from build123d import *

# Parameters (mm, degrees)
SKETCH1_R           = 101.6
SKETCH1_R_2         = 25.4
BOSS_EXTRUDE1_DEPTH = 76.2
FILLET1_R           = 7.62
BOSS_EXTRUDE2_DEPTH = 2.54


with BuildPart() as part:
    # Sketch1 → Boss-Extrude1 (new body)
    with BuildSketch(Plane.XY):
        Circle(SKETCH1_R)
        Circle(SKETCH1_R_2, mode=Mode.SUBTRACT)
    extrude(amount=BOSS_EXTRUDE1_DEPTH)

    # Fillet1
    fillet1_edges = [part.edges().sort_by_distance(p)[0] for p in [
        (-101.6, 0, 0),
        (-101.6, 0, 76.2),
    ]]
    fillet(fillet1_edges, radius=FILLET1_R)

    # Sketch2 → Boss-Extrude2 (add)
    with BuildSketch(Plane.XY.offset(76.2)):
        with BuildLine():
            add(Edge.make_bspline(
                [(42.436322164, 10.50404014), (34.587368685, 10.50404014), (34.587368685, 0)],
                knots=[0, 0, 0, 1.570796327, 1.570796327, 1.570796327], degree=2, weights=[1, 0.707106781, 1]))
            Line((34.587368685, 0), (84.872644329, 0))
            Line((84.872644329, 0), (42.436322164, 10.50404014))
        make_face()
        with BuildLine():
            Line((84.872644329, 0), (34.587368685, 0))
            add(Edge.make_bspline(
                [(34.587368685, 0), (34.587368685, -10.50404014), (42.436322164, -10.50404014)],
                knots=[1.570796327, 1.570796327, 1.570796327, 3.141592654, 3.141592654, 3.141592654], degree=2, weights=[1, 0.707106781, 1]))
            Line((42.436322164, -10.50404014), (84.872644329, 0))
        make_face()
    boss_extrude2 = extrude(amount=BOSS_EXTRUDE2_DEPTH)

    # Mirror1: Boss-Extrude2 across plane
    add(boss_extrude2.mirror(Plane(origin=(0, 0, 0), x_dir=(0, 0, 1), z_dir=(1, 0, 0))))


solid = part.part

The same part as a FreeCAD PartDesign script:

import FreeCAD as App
import Part
import Sketcher
Q = App.Units.Quantity


def edges_at(feature, points):
    """Names of the edges that pass closest to the given points."""
    edges = feature.Shape.Edges
    near = lambda p: min(range(len(edges)), key=lambda i: edges[i].distToShape(Part.Vertex(*p))[0])
    return sorted({f"Edge{near(p) + 1}" for p in points})

doc = App.newDocument("Part")
params = doc.addObject("Spreadsheet::Sheet", "Params")
for row, (alias, value) in enumerate([
    ("sketch1_diameter", "8 in"),
    ("sketch1_diameter2", "2 in"),
    ("pad1_length", "3 in"),
    ("fillet_radius", "0.3 in"),
    ("pad2_length", "0.1 in"),
], start=1):
    params.set(f"A{row}", alias)
    params.set(f"B{row}", "=" + value)
    params.setAlias(f"B{row}", alias)

body = doc.addObject("PartDesign::Body", "Body")

sketch1 = body.newObject("Sketcher::SketchObject", "Sketch")
sketch1.AttachmentSupport = (doc.getObject("XY_Plane"), [""])
sketch1.MapMode = "FlatFace"
sketch1.addGeometry(Part.Circle(App.Vector(0, 0, 0), App.Vector(0, 0, 1), 101.6), False)
sketch1.addGeometry(Part.Circle(App.Vector(0, 0, 0), App.Vector(0, 0, 1), 25.4), False)
sketch1.addConstraint(Sketcher.Constraint("Coincident", 0, 3, -1, 1))
sketch1.addConstraint(Sketcher.Constraint("Coincident", 1, 3, -1, 1))
sketch1.addConstraint(Sketcher.Constraint("Diameter", 0, Q("8 in")))
sketch1.addConstraint(Sketcher.Constraint("Diameter", 1, Q("2 in")))
sketch1.setExpression("Constraints[2]", "Params.sketch1_diameter")
sketch1.setExpression("Constraints[3]", "Params.sketch1_diameter2")
pad1 = body.newObject("PartDesign::Pad", "Pad")
pad1.Profile = sketch1
pad1.setExpression("Length", "Params.pad1_length")
doc.recompute()

fillet = body.newObject("PartDesign::Fillet", "Fillet")
fillet.Base = (pad1, edges_at(pad1, [(-101.6, 0, 0), (-101.6, 0, 76.2)]))
fillet.setExpression("Radius", "Params.fillet_radius")

sketch2 = body.newObject("Sketcher::SketchObject", "Sketch001")
sketch2.AttachmentSupport = (doc.getObject("XY_Plane"), [""])
sketch2.MapMode = "FlatFace"
sketch2.AttachmentOffset = App.Placement(App.Vector(0, 0, 3 * 25.4), App.Rotation())
sketch2.addGeometry(Part.BSplineCurve([App.Vector(42.436322, 10.50404, 0), App.Vector(40.216303, 10.50404, 0), App.Vector(37.501845, 9.416311, 0), App.Vector(35.400154, 6.603676, 0), App.Vector(34.587369, 2.970991, 0), App.Vector(34.587369, -2.970991, 0), App.Vector(35.400154, -6.603676, 0), App.Vector(37.501845, -9.416311, 0), App.Vector(40.216303, -10.50404, 0), App.Vector(42.436322, -10.50404, 0)], [6, 4, 6], [0, 1.570796327, 3.141592654], False, 5, [1, 1, 0.965685425, 0.965685425, 1, 1, 0.965685425, 0.965685425, 1, 1], False), False)
sketch2.addGeometry(Part.LineSegment(App.Vector(42.436322, -10.50404, 0), App.Vector(84.872644, 0, 0)), False)
sketch2.addGeometry(Part.LineSegment(App.Vector(84.872644, 0, 0), App.Vector(42.436322, 10.50404, 0)), False)
sketch2.addConstraint(Sketcher.Constraint("Block", 0))
sketch2.addConstraint(Sketcher.Constraint("Coincident", 0, 2, 1, 1))
sketch2.addConstraint(Sketcher.Constraint("Coincident", 1, 2, 2, 1))
sketch2.addConstraint(Sketcher.Constraint("Coincident", 2, 2, 0, 1))
sketch2.addConstraint(Sketcher.Constraint("PointOnObject", 1, 2, -1))
sketch2.addConstraint(Sketcher.Constraint("Distance", 1, Q("43.717002 mm")))
pad2 = body.newObject("PartDesign::Pad", "Pad001")
pad2.Profile = sketch2
pad2.setExpression("Length", "Params.pad2_length")
doc.recompute()

mirrored = body.newObject("PartDesign::Mirrored", "Mirrored")
mirrored.Originals = [pad2]
mirrored.MirrorPlane = (doc.getObject("YZ_Plane"), [""])
body.Tip = mirrored

doc.recompute()
